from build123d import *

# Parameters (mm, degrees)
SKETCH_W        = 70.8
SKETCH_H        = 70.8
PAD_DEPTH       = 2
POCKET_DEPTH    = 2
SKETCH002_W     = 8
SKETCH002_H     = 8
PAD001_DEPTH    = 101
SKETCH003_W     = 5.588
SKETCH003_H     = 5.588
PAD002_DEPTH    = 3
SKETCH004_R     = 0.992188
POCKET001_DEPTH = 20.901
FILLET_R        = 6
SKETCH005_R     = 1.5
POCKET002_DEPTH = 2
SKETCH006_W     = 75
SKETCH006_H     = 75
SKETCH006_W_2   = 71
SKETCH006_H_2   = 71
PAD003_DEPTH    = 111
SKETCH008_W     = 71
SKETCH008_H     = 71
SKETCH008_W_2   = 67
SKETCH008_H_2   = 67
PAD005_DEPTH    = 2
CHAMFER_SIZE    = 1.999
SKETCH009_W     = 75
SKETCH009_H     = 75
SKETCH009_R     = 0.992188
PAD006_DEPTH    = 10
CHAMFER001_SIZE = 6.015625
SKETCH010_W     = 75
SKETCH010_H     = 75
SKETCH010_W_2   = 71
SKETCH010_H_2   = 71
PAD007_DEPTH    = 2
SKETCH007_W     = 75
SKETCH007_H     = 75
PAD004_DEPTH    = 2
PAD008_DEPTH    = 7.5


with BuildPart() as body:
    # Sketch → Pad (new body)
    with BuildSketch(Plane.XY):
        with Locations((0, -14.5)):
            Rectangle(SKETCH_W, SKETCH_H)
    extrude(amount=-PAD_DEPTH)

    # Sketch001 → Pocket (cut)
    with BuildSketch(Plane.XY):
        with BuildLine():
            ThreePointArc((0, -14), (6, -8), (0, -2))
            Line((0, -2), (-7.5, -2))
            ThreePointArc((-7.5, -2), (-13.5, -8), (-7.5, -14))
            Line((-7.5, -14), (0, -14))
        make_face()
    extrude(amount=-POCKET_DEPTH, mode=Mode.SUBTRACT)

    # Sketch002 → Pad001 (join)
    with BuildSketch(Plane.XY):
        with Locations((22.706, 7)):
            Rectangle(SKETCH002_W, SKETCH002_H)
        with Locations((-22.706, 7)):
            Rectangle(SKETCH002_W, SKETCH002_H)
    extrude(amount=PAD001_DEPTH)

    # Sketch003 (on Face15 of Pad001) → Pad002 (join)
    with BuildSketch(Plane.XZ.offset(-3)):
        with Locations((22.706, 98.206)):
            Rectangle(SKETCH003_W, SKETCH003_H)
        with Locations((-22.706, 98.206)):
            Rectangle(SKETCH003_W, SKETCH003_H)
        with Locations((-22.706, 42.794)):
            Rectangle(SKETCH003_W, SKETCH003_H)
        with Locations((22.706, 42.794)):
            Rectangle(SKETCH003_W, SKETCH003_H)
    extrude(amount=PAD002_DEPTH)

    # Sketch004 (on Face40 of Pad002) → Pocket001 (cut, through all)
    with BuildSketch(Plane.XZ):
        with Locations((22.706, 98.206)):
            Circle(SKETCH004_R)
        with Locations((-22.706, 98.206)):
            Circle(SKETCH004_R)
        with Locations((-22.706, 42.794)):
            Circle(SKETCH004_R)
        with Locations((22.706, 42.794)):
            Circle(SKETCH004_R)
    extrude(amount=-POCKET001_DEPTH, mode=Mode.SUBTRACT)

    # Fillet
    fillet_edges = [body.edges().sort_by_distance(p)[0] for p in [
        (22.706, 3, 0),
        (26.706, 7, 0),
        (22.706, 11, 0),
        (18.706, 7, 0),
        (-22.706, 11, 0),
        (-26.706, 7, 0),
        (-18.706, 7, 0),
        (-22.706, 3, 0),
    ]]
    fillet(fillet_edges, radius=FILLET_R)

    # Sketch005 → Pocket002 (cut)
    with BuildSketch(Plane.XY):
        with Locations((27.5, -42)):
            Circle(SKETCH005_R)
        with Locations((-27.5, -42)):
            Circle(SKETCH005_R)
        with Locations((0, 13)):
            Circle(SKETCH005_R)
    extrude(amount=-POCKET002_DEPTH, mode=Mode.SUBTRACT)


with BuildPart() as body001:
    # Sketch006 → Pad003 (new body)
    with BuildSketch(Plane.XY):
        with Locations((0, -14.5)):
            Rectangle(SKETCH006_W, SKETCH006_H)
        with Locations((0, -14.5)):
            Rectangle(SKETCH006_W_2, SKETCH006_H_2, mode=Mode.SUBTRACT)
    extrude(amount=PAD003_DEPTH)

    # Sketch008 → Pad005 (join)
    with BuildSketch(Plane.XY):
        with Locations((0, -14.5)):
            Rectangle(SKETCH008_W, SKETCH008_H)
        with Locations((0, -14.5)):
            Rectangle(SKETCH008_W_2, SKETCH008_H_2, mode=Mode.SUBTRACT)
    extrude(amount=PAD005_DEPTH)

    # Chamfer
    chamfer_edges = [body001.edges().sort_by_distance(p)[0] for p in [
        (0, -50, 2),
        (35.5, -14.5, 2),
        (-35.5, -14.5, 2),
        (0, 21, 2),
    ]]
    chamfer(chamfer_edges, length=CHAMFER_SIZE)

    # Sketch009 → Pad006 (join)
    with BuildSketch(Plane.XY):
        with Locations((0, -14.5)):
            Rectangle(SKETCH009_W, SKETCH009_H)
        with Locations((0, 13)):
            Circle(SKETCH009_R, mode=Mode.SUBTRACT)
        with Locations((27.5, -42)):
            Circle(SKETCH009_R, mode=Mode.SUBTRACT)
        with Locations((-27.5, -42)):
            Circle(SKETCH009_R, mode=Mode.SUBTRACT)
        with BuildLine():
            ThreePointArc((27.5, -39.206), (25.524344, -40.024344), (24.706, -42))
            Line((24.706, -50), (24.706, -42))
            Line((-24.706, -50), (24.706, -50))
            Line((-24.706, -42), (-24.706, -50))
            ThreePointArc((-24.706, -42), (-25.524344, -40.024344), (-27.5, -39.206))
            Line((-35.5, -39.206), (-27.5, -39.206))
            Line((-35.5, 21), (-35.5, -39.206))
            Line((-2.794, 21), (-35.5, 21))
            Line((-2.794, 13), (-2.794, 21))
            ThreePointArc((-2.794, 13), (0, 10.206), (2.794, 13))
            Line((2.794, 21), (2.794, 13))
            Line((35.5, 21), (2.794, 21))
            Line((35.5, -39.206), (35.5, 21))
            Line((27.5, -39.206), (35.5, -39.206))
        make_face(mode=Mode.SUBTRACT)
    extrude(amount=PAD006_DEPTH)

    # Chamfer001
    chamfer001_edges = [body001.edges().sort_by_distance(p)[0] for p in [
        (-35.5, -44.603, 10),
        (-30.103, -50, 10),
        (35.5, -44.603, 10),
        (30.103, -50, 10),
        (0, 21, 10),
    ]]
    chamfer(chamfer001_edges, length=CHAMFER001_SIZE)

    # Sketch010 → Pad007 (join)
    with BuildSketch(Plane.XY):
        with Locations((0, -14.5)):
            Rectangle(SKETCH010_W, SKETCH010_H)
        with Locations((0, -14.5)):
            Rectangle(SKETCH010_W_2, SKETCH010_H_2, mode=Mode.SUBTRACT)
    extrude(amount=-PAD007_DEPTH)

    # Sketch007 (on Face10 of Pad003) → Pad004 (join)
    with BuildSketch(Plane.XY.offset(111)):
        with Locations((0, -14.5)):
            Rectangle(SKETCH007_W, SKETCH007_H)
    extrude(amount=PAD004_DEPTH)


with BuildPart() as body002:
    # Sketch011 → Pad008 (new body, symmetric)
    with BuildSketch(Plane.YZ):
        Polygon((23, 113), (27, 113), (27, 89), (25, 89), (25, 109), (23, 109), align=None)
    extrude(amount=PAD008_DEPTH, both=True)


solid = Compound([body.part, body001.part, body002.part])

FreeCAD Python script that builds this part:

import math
import FreeCAD as App
import Part
import Sketcher

V = App.Vector
Q = App.Units.Quantity


def edges_at(feature, points):
    """Names of the edges that pass closest to the given points."""
    edges = feature.Shape.Edges
    near = lambda p: min(range(len(edges)), key=lambda i: edges[i].distToShape(Part.Vertex(*p))[0])
    return sorted({f"Edge{near(p) + 1}" for p in points})

doc = App.newDocument("Part")
params = doc.addObject("Spreadsheet::Sheet", "Params")
for row, (alias, value) in enumerate([
    ("sketch1_width", "70.8 mm"),
    ("pad1_length", "2 mm"),
    ("sketch2_radius", "6 mm"),
    ("sketch2_width", "7.5 mm"),
    ("pocket1_length", "2 mm"),
    ("sketch3_width", "8 mm"),
    ("pad2_length", "101 mm"),
    ("pad3_length", "3 mm"),
    ("fillet_radius", "6 mm"),
    ("sketch6_diameter", "3 mm"),
    ("pocket3_length", "2 mm"),
    ("sketch7_width", "75 mm"),
    ("sketch7_width2", "71 mm"),
    ("pad4_length", "111 mm"),
    ("sketch8_width", "71 mm"),
    ("sketch8_width2", "67 mm"),
    ("pad5_length", "2 mm"),
    ("chamfer_size", "1.999 mm"),
    ("sketch9_width", "75 mm"),
    ("sketch9_width2", "8 mm"),
    ("pad6_length", "10 mm"),
    ("chamfer2_size", "6.015625 mm"),
    ("sketch10_width", "75 mm"),
    ("sketch10_width2", "71 mm"),
    ("pad7_length", "2 mm"),
    ("sketch11_width", "75 mm"),
    ("pad8_length", "2 mm"),
    ("sketch12_width", "4 mm"),
    ("sketch12_height", "20 mm"),
    ("pad9_length", "15 mm"),
], start=1):
    params.set(f"A{row}", alias)
    params.set(f"B{row}", "=" + value)
    params.setAlias(f"B{row}", alias)

body = doc.addObject("PartDesign::Body", "Body")

sketch1 = doc.addObject("Sketcher::SketchObject", "Sketch")
body.addObject(sketch1)
sketch1.AttachmentSupport = (doc.XY_Plane, [""])
sketch1.MapMode = "FlatFace"
sketch1.addGeometry(Part.LineSegment(V(-35, 21, 0), V(-35, -50, 0)), False)
sketch1.addGeometry(Part.LineSegment(V(-35, -50, 0), V(35, -50, 0)), False)
sketch1.addGeometry(Part.LineSegment(V(35, -50, 0), V(35, 21, 0)), False)
sketch1.addGeometry(Part.LineSegment(V(35, 21, 0), V(-35, 21, 0)), False)
sketch1.addConstraint(Sketcher.Constraint("Coincident", 0, 2, 1, 1))
sketch1.addConstraint(Sketcher.Constraint("Coincident", 1, 2, 2, 1))
sketch1.addConstraint(Sketcher.Constraint("Coincident", 2, 2, 3, 1))
sketch1.addConstraint(Sketcher.Constraint("Coincident", 3, 2, 0, 1))
sketch1.addConstraint(Sketcher.Constraint("Vertical", 0))
sketch1.addConstraint(Sketcher.Constraint("Horizontal", 1))
sketch1.addConstraint(Sketcher.Constraint("Vertical", 2))
sketch1.addConstraint(Sketcher.Constraint("Horizontal", 3))
sketch1.addConstraint(Sketcher.Constraint("Equal", 3, 0))
sketch1.addConstraint(Sketcher.Constraint("DistanceX", 1, 1, 1, 2, Q("70.8 mm")))
sketch1.addConstraint(Sketcher.Constraint("DistanceX", 0, 2, -1, 1, Q("35.4 mm")))
sketch1.addConstraint(Sketcher.Constraint("DistanceY", 0, 2, -1, 1, Q("49.9 mm")))
sketch1.setExpression("Constraints[9]", "Params.sketch1_width")
pad1 = doc.addObject("PartDesign::Pad", "Pad")
body.addObject(pad1)
pad1.Profile = sketch1
pad1.setExpression("Length", "Params.pad1_length")
pad1.Reversed = True

sketch2 = doc.addObject("Sketcher::SketchObject", "Sketch001")
body.addObject(sketch2)
sketch2.AttachmentSupport = (doc.XY_Plane, [""])
sketch2.MapMode = "FlatFace"
sketch2.addGeometry(Part.ArcOfCircle(Part.Circle(V(0, -8, 0), V(0, 0, 1), 6), math.radians(-90), math.radians(90)), False)
sketch2.addGeometry(Part.LineSegment(V(0, -2, 0), V(-8, -2, 0)), False)
sketch2.addGeometry(Part.ArcOfCircle(Part.Circle(V(-8, -8, 0), V(0, 0, 1), 6), math.radians(90), math.radians(270)), False)
sketch2.addGeometry(Part.LineSegment(V(-8, -14, 0), V(0, -14, 0)), False)
sketch2.addConstraint(Sketcher.Constraint("Tangent", 0, 2, 1, 1))
sketch2.addConstraint(Sketcher.Constraint("Tangent", 1, 2, 2, 1))
sketch2.addConstraint(Sketcher.Constraint("Tangent", 2, 2, 3, 1))
sketch2.addConstraint(Sketcher.Constraint("Tangent", 3, 2, 0, 1))
sketch2.addConstraint(Sketcher.Constraint("Horizontal", 1))
sketch2.addConstraint(Sketcher.Constraint("Horizontal", 3))
sketch2.addConstraint(Sketcher.Constraint("PointOnObject", 0, 3, -2))
sketch2.addConstraint(Sketcher.Constraint("Radius", 0, Q("6 mm")))
sketch2.addConstraint(Sketcher.Constraint("DistanceX", 1, 2, 1, 1, Q("7.5 mm")))
sketch2.addConstraint(Sketcher.Constraint("DistanceY", 0, 3, -1, 1, Q("8 mm")))
sketch2.setExpression("Constraints[7]", "Params.sketch2_radius")
sketch2.setExpression("Constraints[8]", "Params.sketch2_width")
pocket1 = doc.addObject("PartDesign::Pocket", "Pocket")
body.addObject(pocket1)
pocket1.Profile = sketch2
pocket1.setExpression("Length", "Params.pocket1_length")

sketch3 = doc.addObject("Sketcher::SketchObject", "Sketch002")
body.addObject(sketch3)
sketch3.AttachmentSupport = (doc.XY_Plane, [""])
sketch3.MapMode = "FlatFace"
sketch3.addGeometry(Part.LineSegment(V(19, 11, 0), V(19, 3, 0)), False)
sketch3.addGeometry(Part.LineSegment(V(19, 3, 0), V(27, 3, 0)), False)
sketch3.addGeometry(Part.LineSegment(V(27, 3, 0), V(27, 11, 0)), False)
sketch3.addGeometry(Part.LineSegment(V(27, 11, 0), V(19, 11, 0)), False)
sketch3.addGeometry(Part.LineSegment(V(-27, 11, 0), V(-27, 3, 0)), False)
sketch3.addGeometry(Part.LineSegment(V(-27, 3, 0), V(-19, 3, 0)), False)
sketch3.addGeometry(Part.LineSegment(V(-19, 3, 0), V(-19, 11, 0)), False)
sketch3.addGeometry(Part.LineSegment(V(-19, 11, 0), V(-27, 11, 0)), False)
sketch3.addConstraint(Sketcher.Constraint("Coincident", 0, 2, 1, 1))
sketch3.addConstraint(Sketcher.Constraint("Coincident", 1, 2, 2, 1))
sketch3.addConstraint(Sketcher.Constraint("Coincident", 2, 2, 3, 1))
sketch3.addConstraint(Sketcher.Constraint("Coincident", 3, 2, 0, 1))
sketch3.addConstraint(Sketcher.Constraint("Coincident", 4, 2, 5, 1))
sketch3.addConstraint(Sketcher.Constraint("Coincident", 5, 2, 6, 1))
sketch3.addConstraint(Sketcher.Constraint("Coincident", 6, 2, 7, 1))
sketch3.addConstraint(Sketcher.Constraint("Coincident", 7, 2, 4, 1))
sketch3.addConstraint(Sketcher.Constraint("Vertical", 0))
sketch3.addConstraint(Sketcher.Constraint("Horizontal", 1))
sketch3.addConstraint(Sketcher.Constraint("Vertical", 2))
sketch3.addConstraint(Sketcher.Constraint("Horizontal", 3))
sketch3.addConstraint(Sketcher.Constraint("Vertical", 4))
sketch3.addConstraint(Sketcher.Constraint("Horizontal", 5))
sketch3.addConstraint(Sketcher.Constraint("Vertical", 6))
sketch3.addConstraint(Sketcher.Constraint("Horizontal", 7))
sketch3.addConstraint(Sketcher.Constraint("Symmetric", 1, 2, 4, 2, -2))
sketch3.addConstraint(Sketcher.Constraint("Symmetric", 3, 2, 6, 2, -2))
sketch3.addConstraint(Sketcher.Constraint("Equal", 7, 0))
sketch3.addConstraint(Sketcher.Constraint("DistanceX", 1, 1, 1, 2, Q("8 mm")))
sketch3.addConstraint(Sketcher.Constraint("DistanceY", -1, 1, 0, 2, Q("3 mm")))
sketch3.addConstraint(Sketcher.Constraint("DistanceX", -1, 1, 0, 2, Q("18.706 mm")))
sketch3.setExpression("Constraints[19]", "Params.sketch3_width")
pad2 = doc.addObject("PartDesign::Pad", "Pad001")
body.addObject(pad2)
pad2.Profile = sketch3
pad2.setExpression("Length", "Params.pad2_length")

sketch4 = doc.addObject("Sketcher::SketchObject", "Sketch003")
body.addObject(sketch4)
sketch4.AttachmentSupport = (doc.XZ_Plane, [""])
sketch4.MapMode = "FlatFace"
sketch4.AttachmentOffset = App.Placement(V(0, 0, -3), App.Rotation())
sketch4.addGeometry(Part.LineSegment(V(20, 101, 0), V(20, 95, 0)), False)
sketch4.addGeometry(Part.LineSegment(V(20, 95, 0), V(26, 95, 0)), False)
sketch4.addGeometry(Part.LineSegment(V(26, 95, 0), V(26, 101, 0)), False)
sketch4.addGeometry(Part.LineSegment(V(26, 101, 0), V(20, 101, 0)), False)
sketch4.addGeometry(Part.LineSegment(V(-26, 101, 0), V(-26, 95, 0)), False)
sketch4.addGeometry(Part.LineSegment(V(-26, 95, 0), V(-20, 95, 0)), False)
sketch4.addGeometry(Part.LineSegment(V(-20, 95, 0), V(-20, 101, 0)), False)
sketch4.addGeometry(Part.LineSegment(V(-20, 101, 0), V(-26, 101, 0)), False)
sketch4.addGeometry(Part.LineSegment(V(-26, 46, 0), V(-26, 40, 0)), False)
sketch4.addGeometry(Part.LineSegment(V(-26, 40, 0), V(-20, 40, 0)), False)
sketch4.addGeometry(Part.LineSegment(V(-20, 40, 0), V(-20, 46, 0)), False)
sketch4.addGeometry(Part.LineSegment(V(-20, 46, 0), V(-26, 46, 0)), False)
sketch4.addGeometry(Part.LineSegment(V(20, 46, 0), V(20, 40, 0)), False)
sketch4.addGeometry(Part.LineSegment(V(20, 40, 0), V(26, 40, 0)), False)
sketch4.addGeometry(Part.LineSegment(V(26, 40, 0), V(26, 46, 0)), False)
sketch4.addGeometry(Part.LineSegment(V(26, 46, 0), V(20, 46, 0)), False)
sketch4.addConstraint(Sketcher.Constraint("Coincident", 0, 2, 1, 1))
sketch4.addConstraint(Sketcher.Constraint("Coincident", 1, 2, 2, 1))
sketch4.addConstraint(Sketcher.Constraint("Coincident", 2, 2, 3, 1))
sketch4.addConstraint(Sketcher.Constraint("Coincident", 3, 2, 0, 1))
sketch4.addConstraint(Sketcher.Constraint("Coincident", 4, 2, 5, 1))
sketch4.addConstraint(Sketcher.Constraint("Coincident", 5, 2, 6, 1))
sketch4.addConstraint(Sketcher.Constraint("Coincident", 6, 2, 7, 1))
sketch4.addConstraint(Sketcher.Constraint("Coincident", 7, 2, 4, 1))
sketch4.addConstraint(Sketcher.Constraint("Coincident", 8, 2, 9, 1))
sketch4.addConstraint(Sketcher.Constraint("Coincident", 9, 2, 10, 1))
sketch4.addConstraint(Sketcher.Constraint("Coincident", 10, 2, 11, 1))
sketch4.addConstraint(Sketcher.Constraint("Coincident", 11, 2, 8, 1))
sketch4.addConstraint(Sketcher.Constraint("Coincident", 12, 2, 13, 1))
sketch4.addConstraint(Sketcher.Constraint("Coincident", 13, 2, 14, 1))
sketch4.addConstraint(Sketcher.Constraint("Coincident", 14, 2, 15, 1))
sketch4.addConstraint(Sketcher.Constraint("Coincident", 15, 2, 12, 1))
sketch4.addConstraint(Sketcher.Constraint("Vertical", 0))
sketch4.addConstraint(Sketcher.Constraint("Horizontal", 1))
sketch4.addConstraint(Sketcher.Constraint("Vertical", 2))
sketch4.addConstraint(Sketcher.Constraint("Horizontal", 3))
sketch4.addConstraint(Sketcher.Constraint("Vertical", 4))
sketch4.addConstraint(Sketcher.Constraint("Horizontal", 5))
sketch4.addConstraint(Sketcher.Constraint("Vertical", 6))
sketch4.addConstraint(Sketcher.Constraint("Horizontal", 7))
sketch4.addConstraint(Sketcher.Constraint("Vertical", 8))
sketch4.addConstraint(Sketcher.Constraint("Horizontal", 9))
sketch4.addConstraint(Sketcher.Constraint("Vertical", 10))
sketch4.addConstraint(Sketcher.Constraint("Horizontal", 11))
sketch4.addConstraint(Sketcher.Constraint("Vertical", 12))
sketch4.addConstraint(Sketcher.Constraint("Horizontal", 13))
sketch4.addConstraint(Sketcher.Constraint("Vertical", 14))
sketch4.addConstraint(Sketcher.Constraint("Horizontal", 15))
sketch4.addConstraint(Sketcher.Constraint("Symmetric", 1, 2, 4, 2, -2))
sketch4.addConstraint(Sketcher.Constraint("Symmetric", 3, 2, 6, 2, -2))
sketch4.addConstraint(Sketcher.Constraint("Symmetric", 9, 2, 12, 2, -2))
sketch4.addConstraint(Sketcher.Constraint("Symmetric", 11, 2, 14, 2, -2))
sketch4.addConstraint(Sketcher.Constraint("Vertical", 7, 2, 8, 2))
sketch4.addConstraint(Sketcher.Constraint("Vertical", 6, 2, 9, 2))
sketch4.addConstraint(Sketcher.Constraint("Equal", 15, 0))
sketch4.addConstraint(Sketcher.Constraint("Equal", 6, 8))
sketch4.addConstraint(Sketcher.Constraint("DistanceY", -1, 1, 2, 2, Q("101 mm")))
sketch4.addConstraint(Sketcher.Constraint("DistanceY", -1, 1, 8, 2, Q("40 mm")))
sketch4.addConstraint(Sketcher.Constraint("DistanceX", 4, 2, 1, 2, Q("51 mm")))
sketch4.addConstraint(Sketcher.Constraint("DistanceX", 1, 1, 1, 2, Q("5.588 mm")))
pad3 = doc.addObject("PartDesign::Pad", "Pad002")
body.addObject(pad3)
pad3.Profile = sketch4
pad3.setExpression("Length", "Params.pad3_length")

sketch5 = doc.addObject("Sketcher::SketchObject", "Sketch004")
body.addObject(sketch5)
sketch5.AttachmentSupport = (doc.XZ_Plane, [""])
sketch5.MapMode = "FlatFace"
sketch5.addGeometry(Part.Circle(V(22.7, 98.2, 0), V(0, 0, 1), 1), False)
sketch5.addGeometry(Part.Circle(V(-22.7, 98.2, 0), V(0, 0, 1), 1), False)
sketch5.addGeometry(Part.Circle(V(-22.7, 42.8, 0), V(0, 0, 1), 1), False)
sketch5.addGeometry(Part.Circle(V(22.7, 42.8, 0), V(0, 0, 1), 1), False)
sketch5.addConstraint(Sketcher.Constraint("Equal", 0, 1))
sketch5.addConstraint(Sketcher.Constraint("Equal", 1, 2))
sketch5.addConstraint(Sketcher.Constraint("Equal", 2, 3))
sketch5.addConstraint(Sketcher.Constraint("Symmetric", 0, 3, 1, 3, -2))
sketch5.addConstraint(Sketcher.Constraint("Symmetric", 2, 3, 3, 3, -2))
sketch5.addConstraint(Sketcher.Constraint("Vertical", 1, 3, 2, 3))
sketch5.addConstraint(Sketcher.Constraint("Diameter", 0, Q("1.984376 mm")))
sketch5.addConstraint(Sketcher.Constraint("DistanceX", -1, 1, 0, 3, Q("22.706 mm")))
sketch5.addConstraint(Sketcher.Constraint("DistanceY", -1, 1, 0, 3, Q("98.206 mm")))
sketch5.addConstraint(Sketcher.Constraint("DistanceY", -1, 1, 2, 3, Q("42.794 mm")))
pocket2 = doc.addObject("PartDesign::Pocket", "Pocket001")
body.addObject(pocket2)
pocket2.Profile = sketch5
pocket2.Type = "ThroughAll"
doc.recompute()

fillet = doc.addObject("PartDesign::Fillet", "Fillet")
body.addObject(fillet)
fillet.Base = (pocket2, edges_at(pocket2, [
    (22.706, 3, 0),
    (26.706, 7, 0),
    (22.706, 11, 0),
    (18.706, 7, 0),
    (-22.706, 11, 0),
    (-26.706, 7, 0),
    (-18.706, 7, 0),
    (-22.706, 3, 0),
]))
fillet.setExpression("Radius", "Params.fillet_radius")

sketch6 = doc.addObject("Sketcher::SketchObject", "Sketch005")
body.addObject(sketch6)
sketch6.AttachmentSupport = (doc.XY_Plane, [""])
sketch6.MapMode = "FlatFace"
sketch6.addGeometry(Part.Circle(V(27.5, -42, 0), V(0, 0, 1), 1.5), False)
sketch6.addGeometry(Part.Circle(V(-27.5, -42, 0), V(0, 0, 1), 1.5), False)
sketch6.addGeometry(Part.Circle(V(0, 13, 0), V(0, 0, 1), 1.5), False)
sketch6.addConstraint(Sketcher.Constraint("Equal", 0, 1))
sketch6.addConstraint(Sketcher.Constraint("Equal", 1, 2))
sketch6.addConstraint(Sketcher.Constraint("Symmetric", 0, 3, 1, 3, -2))
sketch6.addConstraint(Sketcher.Constraint("PointOnObject", 2, 3, -2))
sketch6.addConstraint(Sketcher.Constraint("Diameter", 0, Q("3 mm")))
sketch6.addConstraint(Sketcher.Constraint("DistanceY", 0, 3, -1, 1, Q("42 mm")))
sketch6.addConstraint(Sketcher.Constraint("DistanceY", -1, 1, 2, 3, Q("13 mm")))
sketch6.addConstraint(Sketcher.Constraint("DistanceX", 1, 3, 0, 3, Q("55 mm")))
sketch6.setExpression("Constraints[4]", "Params.sketch6_diameter")
pocket3 = doc.addObject("PartDesign::Pocket", "Pocket002")
body.addObject(pocket3)
pocket3.Profile = sketch6
pocket3.setExpression("Length", "Params.pocket3_length")
body2 = doc.addObject("PartDesign::Body", "Body001")

sketch7 = doc.addObject("Sketcher::SketchObject", "Sketch006")
body2.addObject(sketch7)
sketch7.AttachmentSupport = (doc.getObject("XY_Plane001"), [""])
sketch7.MapMode = "FlatFace"
sketch7.addGeometry(Part.LineSegment(V(-38, 23, 0), V(-38, -52, 0)), False)
sketch7.addGeometry(Part.LineSegment(V(-38, -52, 0), V(38, -52, 0)), False)
sketch7.addGeometry(Part.LineSegment(V(38, -52, 0), V(38, 23, 0)), False)
sketch7.addGeometry(Part.LineSegment(V(38, 23, 0), V(-38, 23, 0)), False)
sketch7.addGeometry(Part.LineSegment(V(36, -50, 0), V(-36, -50, 0)), False)
sketch7.addGeometry(Part.LineSegment(V(-36, -50, 0), V(-36, 21, 0)), False)
sketch7.addGeometry(Part.LineSegment(V(-36, 21, 0), V(36, 21, 0)), False)
sketch7.addGeometry(Part.LineSegment(V(36, 21, 0), V(36, -50, 0)), False)
sketch7.addConstraint(Sketcher.Constraint("Coincident", 0, 2, 1, 1))
sketch7.addConstraint(Sketcher.Constraint("Coincident", 1, 2, 2, 1))
sketch7.addConstraint(Sketcher.Constraint("Coincident", 2, 2, 3, 1))
sketch7.addConstraint(Sketcher.Constraint("Coincident", 3, 2, 0, 1))
sketch7.addConstraint(Sketcher.Constraint("Coincident", 4, 2, 5, 1))
sketch7.addConstraint(Sketcher.Constraint("Coincident", 5, 2, 6, 1))
sketch7.addConstraint(Sketcher.Constraint("Coincident", 6, 2, 7, 1))
sketch7.addConstraint(Sketcher.Constraint("Coincident", 7, 2, 4, 1))
sketch7.addConstraint(Sketcher.Constraint("Vertical", 0))
sketch7.addConstraint(Sketcher.Constraint("Horizontal", 1))
sketch7.addConstraint(Sketcher.Constraint("Vertical", 2))
sketch7.addConstraint(Sketcher.Constraint("Horizontal", 3))
sketch7.addConstraint(Sketcher.Constraint("Horizontal", 4))
sketch7.addConstraint(Sketcher.Constraint("Vertical", 5))
sketch7.addConstraint(Sketcher.Constraint("Horizontal", 6))
sketch7.addConstraint(Sketcher.Constraint("Vertical", 7))
sketch7.addConstraint(Sketcher.Constraint("Equal", 3, 0))
sketch7.addConstraint(Sketcher.Constraint("Equal", 6, 5))
sketch7.addConstraint(Sketcher.Constraint("DistanceX", 1, 1, 1, 2, Q("75 mm")))
sketch7.addConstraint(Sketcher.Constraint("DistanceX", 4, 2, 4, 1, Q("71 mm")))
sketch7.addConstraint(Sketcher.Constraint("DistanceY", 0, 2, -1, 1, Q("52 mm")))
sketch7.addConstraint(Sketcher.Constraint("DistanceY", 4, 2, -1, 1, Q("50 mm")))
sketch7.addConstraint(Sketcher.Constraint("DistanceX", 0, 2, 4, 2, Q("2 mm")))
sketch7.addConstraint(Sketcher.Constraint("DistanceX", 0, 2, -1, 1, Q("37.5 mm")))
sketch7.setExpression("Constraints[18]", "Params.sketch7_width")
sketch7.setExpression("Constraints[19]", "Params.sketch7_width2")
pad4 = doc.addObject("PartDesign::Pad", "Pad003")
body2.addObject(pad4)
pad4.Profile = sketch7
pad4.setExpression("Length", "Params.pad4_length")

sketch8 = doc.addObject("Sketcher::SketchObject", "Sketch007")
body2.addObject(sketch8)
sketch8.AttachmentSupport = (doc.getObject("XY_Plane001"), [""])
sketch8.MapMode = "FlatFace"
sketch8.addGeometry(Part.LineSegment(V(-36, 21, 0), V(-36, -50, 0)), False)
sketch8.addGeometry(Part.LineSegment(V(-36, -50, 0), V(36, -50, 0)), False)
sketch8.addGeometry(Part.LineSegment(V(36, -50, 0), V(36, 21, 0)), False)
sketch8.addGeometry(Part.LineSegment(V(36, 21, 0), V(-36, 21, 0)), False)
sketch8.addGeometry(Part.LineSegment(V(34, -48, 0), V(-34, -48, 0)), False)
sketch8.addGeometry(Part.LineSegment(V(-34, -48, 0), V(-34, 19, 0)), False)
sketch8.addGeometry(Part.LineSegment(V(-34, 19, 0), V(34, 19, 0)), False)
sketch8.addGeometry(Part.LineSegment(V(34, 19, 0), V(34, -48, 0)), False)
sketch8.addConstraint(Sketcher.Constraint("Coincident", 0, 2, 1, 1))
sketch8.addConstraint(Sketcher.Constraint("Coincident", 1, 2, 2, 1))
sketch8.addConstraint(Sketcher.Constraint("Coincident", 2, 2, 3, 1))
sketch8.addConstraint(Sketcher.Constraint("Coincident", 3, 2, 0, 1))
sketch8.addConstraint(Sketcher.Constraint("Coincident", 4, 2, 5, 1))
sketch8.addConstraint(Sketcher.Constraint("Coincident", 5, 2, 6, 1))
sketch8.addConstraint(Sketcher.Constraint("Coincident", 6, 2, 7, 1))
sketch8.addConstraint(Sketcher.Constraint("Coincident", 7, 2, 4, 1))
sketch8.addConstraint(Sketcher.Constraint("Vertical", 0))
sketch8.addConstraint(Sketcher.Constraint("Horizontal", 1))
sketch8.addConstraint(Sketcher.Constraint("Vertical", 2))
sketch8.addConstraint(Sketcher.Constraint("Horizontal", 3))
sketch8.addConstraint(Sketcher.Constraint("Horizontal", 4))
sketch8.addConstraint(Sketcher.Constraint("Vertical", 5))
sketch8.addConstraint(Sketcher.Constraint("Horizontal", 6))
sketch8.addConstraint(Sketcher.Constraint("Vertical", 7))
sketch8.addConstraint(Sketcher.Constraint("Equal", 3, 0))
sketch8.addConstraint(Sketcher.Constraint("Equal", 6, 5))
sketch8.addConstraint(Sketcher.Constraint("DistanceX", 1, 1, 1, 2, Q("71 mm")))
sketch8.addConstraint(Sketcher.Constraint("DistanceX", 4, 2, 4, 1, Q("67 mm")))
sketch8.addConstraint(Sketcher.Constraint("DistanceY", 0, 2, -1, 1, Q("50 mm")))
sketch8.addConstraint(Sketcher.Constraint("DistanceY", 4, 2, -1, 1, Q("48 mm")))
sketch8.addConstraint(Sketcher.Constraint("DistanceX", 0, 2, 4, 2, Q("2 mm")))
sketch8.addConstraint(Sketcher.Constraint("DistanceX", 0, 2, -1, 1, Q("35.5 mm")))
sketch8.setExpression("Constraints[18]", "Params.sketch8_width")
sketch8.setExpression("Constraints[19]", "Params.sketch8_width2")
pad5 = doc.addObject("PartDesign::Pad", "Pad004")
body2.addObject(pad5)
pad5.Profile = sketch8
pad5.setExpression("Length", "Params.pad5_length")
doc.recompute()

chamfer = doc.addObject("PartDesign::Chamfer", "Chamfer")
body2.addObject(chamfer)
chamfer.Base = (pad5, edges_at(pad5, [
    (0, -50, 2),
    (35.5, -14.5, 2),
    (-35.5, -14.5, 2),
    (0, 21, 2),
]))
chamfer.setExpression("Size", "Params.chamfer_size")

sketch9 = doc.addObject("Sketcher::SketchObject", "Sketch008")
body2.addObject(sketch9)
sketch9.AttachmentSupport = (doc.getObject("XY_Plane001"), [""])
sketch9.MapMode = "FlatFace"
sketch9.addGeometry(Part.LineSegment(V(-37.5, 23, 0), V(-37.5, -52, 0)), False)
sketch9.addGeometry(Part.LineSegment(V(-37.5, -52, 0), V(37.5, -52, 0)), False)
sketch9.addGeometry(Part.LineSegment(V(37.5, -52, 0), V(37.5, 23, 0)), False)
sketch9.addGeometry(Part.LineSegment(V(37.5, 23, 0), V(-37.5, 23, 0)), False)
sketch9.addGeometry(Part.Circle(V(-27.5, -42, 0), V(0, 0, 1), 1), False)
sketch9.addGeometry(Part.Circle(V(27.5, -42, 0), V(0, 0, 1), 1), False)
sketch9.addGeometry(Part.LineSegment(V(35.5, -39.2, 0), V(27.5, -39.2, 0)), False)
sketch9.addGeometry(Part.ArcOfCircle(Part.Circle(V(27.5, -42, 0), V(0, 0, 1), 2.8), math.radians(90), math.radians(180)), False)
sketch9.addGeometry(Part.LineSegment(V(24.7, -42, 0), V(24.7, -50, 0)), False)
sketch9.addGeometry(Part.LineSegment(V(24.7, -50, 0), V(-24.7, -50, 0)), False)
sketch9.addGeometry(Part.LineSegment(V(-24.7, -50, 0), V(-24.7, -42, 0)), False)
sketch9.addGeometry(Part.ArcOfCircle(Part.Circle(V(-27.5, -42, 0), V(0, 0, 1), 2.8), math.radians(0), math.radians(90)), False)
sketch9.addGeometry(Part.LineSegment(V(-27.5, -39.2, 0), V(-35.5, -39.2, 0)), False)
sketch9.addGeometry(Part.LineSegment(V(-35.5, -39.2, 0), V(-35.5, 21, 0)), False)
sketch9.addGeometry(Part.LineSegment(V(-35.5, 21, 0), V(-2.8, 21, 0)), False)
sketch9.addGeometry(Part.LineSegment(V(-2.8, 21, 0), V(-2.8, 13, 0)), False)
sketch9.addGeometry(Part.ArcOfCircle(Part.Circle(V(0, 13, 0), V(0, 0, 1), 2.8), math.radians(180), math.radians(360)), False)
sketch9.addGeometry(Part.LineSegment(V(2.8, 13, 0), V(2.8, 21, 0)), False)
sketch9.addGeometry(Part.LineSegment(V(2.8, 21, 0), V(35.5, 21, 0)), False)
sketch9.addGeometry(Part.LineSegment(V(35.5, 21, 0), V(35.5, -39.2, 0)), False)
sketch9.addGeometry(Part.Circle(V(0, 13, 0), V(0, 0, 1), 1), False)
sketch9.addConstraint(Sketcher.Constraint("Coincident", 0, 2, 1, 1))
sketch9.addConstraint(Sketcher.Constraint("Coincident", 1, 2, 2, 1))
sketch9.addConstraint(Sketcher.Constraint("Coincident", 2, 2, 3, 1))
sketch9.addConstraint(Sketcher.Constraint("Coincident", 3, 2, 0, 1))
sketch9.addConstraint(Sketcher.Constraint("Tangent", 6, 2, 7, 1))
sketch9.addConstraint(Sketcher.Constraint("Tangent", 7, 2, 8, 1))
sketch9.addConstraint(Sketcher.Constraint("Coincident", 8, 2, 9, 1))
sketch9.addConstraint(Sketcher.Constraint("Coincident", 9, 2, 10, 1))
sketch9.addConstraint(Sketcher.Constraint("Tangent", 10, 2, 11, 1))
sketch9.addConstraint(Sketcher.Constraint("Tangent", 11, 2, 12, 1))
sketch9.addConstraint(Sketcher.Constraint("Coincident", 12, 2, 13, 1))
sketch9.addConstraint(Sketcher.Constraint("Coincident", 13, 2, 14, 1))
sketch9.addConstraint(Sketcher.Constraint("Coincident", 14, 2, 15, 1))
sketch9.addConstraint(Sketcher.Constraint("Tangent", 15, 2, 16, 1))
sketch9.addConstraint(Sketcher.Constraint("Tangent", 16, 2, 17, 1))
sketch9.addConstraint(Sketcher.Constraint("Coincident", 17, 2, 18, 1))
sketch9.addConstraint(Sketcher.Constraint("Coincident", 18, 2, 19, 1))
sketch9.addConstraint(Sketcher.Constraint("Coincident", 19, 2, 6, 1))
sketch9.addConstraint(Sketcher.Constraint("Vertical", 0))
sketch9.addConstraint(Sketcher.Constraint("Horizontal", 1))
sketch9.addConstraint(Sketcher.Constraint("Vertical", 2))
sketch9.addConstraint(Sketcher.Constraint("Horizontal", 3))
sketch9.addConstraint(Sketcher.Constraint("Horizontal", 6))
sketch9.addConstraint(Sketcher.Constraint("Vertical", 8))
sketch9.addConstraint(Sketcher.Constraint("Horizontal", 9))
sketch9.addConstraint(Sketcher.Constraint("Vertical", 10))
sketch9.addConstraint(Sketcher.Constraint("Horizontal", 12))
sketch9.addConstraint(Sketcher.Constraint("Vertical", 13))
sketch9.addConstraint(Sketcher.Constraint("Horizontal", 14))
sketch9.addConstraint(Sketcher.Constraint("Vertical", 15))
sketch9.addConstraint(Sketcher.Constraint("Vertical", 17))
sketch9.addConstraint(Sketcher.Constraint("Horizontal", 18))
sketch9.addConstraint(Sketcher.Constraint("Vertical", 19))
sketch9.addConstraint(Sketcher.Constraint("Coincident", 7, 3, 5, 3))
sketch9.addConstraint(Sketcher.Constraint("Coincident", 11, 3, 4, 3))
sketch9.addConstraint(Sketcher.Constraint("Coincident", 20, 3, 16, 3))
sketch9.addConstraint(Sketcher.Constraint("Equal", 4, 5))
sketch9.addConstraint(Sketcher.Constraint("Equal", 7, 11))
sketch9.addConstraint(Sketcher.Constraint("Equal", 11, 16))
sketch9.addConstraint(Sketcher.Constraint("Equal", 5, 20))
sketch9.addConstraint(Sketcher.Constraint("Symmetric", 4, 3, 5, 3, -2))
sketch9.addConstraint(Sketcher.Constraint("Symmetric", 14, 2, 17, 2, -2))
sketch9.addConstraint(Sketcher.Constraint("Equal", 6, 12))
sketch9.addConstraint(Sketcher.Constraint("Equal", 3, 0))
sketch9.addConstraint(Sketcher.Constraint("Equal", 12, 8))
sketch9.addConstraint(Sketcher.Constraint("Equal", 10, 15))
sketch9.addConstraint(Sketcher.Constraint("DistanceX", 1, 1, 1, 2, Q("75 mm")))
sketch9.addConstraint(Sketcher.Constraint("DistanceX", 6, 2, 6, 1, Q("8 mm")))
sketch9.addConstraint(Sketcher.Constraint("DistanceY", 4, 3, -1, 1, Q("42 mm")))
sketch9.addConstraint(Sketcher.Constraint("DistanceY", -1, 1, 16, 3, Q("13 mm")))
sketch9.addConstraint(Sketcher.Constraint("DistanceY", 0, 2, -1, 1, Q("52 mm")))
sketch9.addConstraint(Sketcher.Constraint("Radius", 7, Q("2.794001 mm")))
sketch9.addConstraint(Sketcher.Constraint("DistanceX", 4, 3, 5, 3, Q("55 mm")))
sketch9.addConstraint(Sketcher.Constraint("DistanceX", 0, 2, 11, 3, Q("9.999999 mm")))
sketch9.addConstraint(Sketcher.Constraint("Diameter", 4, Q("1.984376 mm")))
sketch9.setExpression("Constraints[46]", "Params.sketch9_width")
sketch9.setExpression("Constraints[47]", "Params.sketch9_width2")
pad6 = doc.addObject("PartDesign::Pad", "Pad005")
body2.addObject(pad6)
pad6.Profile = sketch9
pad6.setExpression("Length", "Params.pad6_length")
doc.recompute()

chamfer2 = doc.addObject("PartDesign::Chamfer", "Chamfer001")
body2.addObject(chamfer2)
chamfer2.Base = (pad6, edges_at(pad6, [
    (-35.5, -44.603, 10),
    (-30.103, -50, 10),
    (35.5, -44.603, 10),
    (30.103, -50, 10),
    (0, 21, 10),
]))
chamfer2.setExpression("Size", "Params.chamfer2_size")

sketch10 = doc.addObject("Sketcher::SketchObject", "Sketch009")
body2.addObject(sketch10)
sketch10.AttachmentSupport = (doc.getObject("XY_Plane001"), [""])
sketch10.MapMode = "FlatFace"
sketch10.addGeometry(Part.LineSegment(V(-38, 23, 0), V(-38, -52, 0)), False)
sketch10.addGeometry(Part.LineSegment(V(-38, -52, 0), V(38, -52, 0)), False)
sketch10.addGeometry(Part.LineSegment(V(38, -52, 0), V(38, 23, 0)), False)
sketch10.addGeometry(Part.LineSegment(V(38, 23, 0), V(-38, 23, 0)), False)
sketch10.addGeometry(Part.LineSegment(V(36, -50, 0), V(-36, -50, 0)), False)
sketch10.addGeometry(Part.LineSegment(V(-36, -50, 0), V(-36, 21, 0)), False)
sketch10.addGeometry(Part.LineSegment(V(-36, 21, 0), V(36, 21, 0)), False)
sketch10.addGeometry(Part.LineSegment(V(36, 21, 0), V(36, -50, 0)), False)
sketch10.addConstraint(Sketcher.Constraint("Coincident", 0, 2, 1, 1))
sketch10.addConstraint(Sketcher.Constraint("Coincident", 1, 2, 2, 1))
sketch10.addConstraint(Sketcher.Constraint("Coincident", 2, 2, 3, 1))
sketch10.addConstraint(Sketcher.Constraint("Coincident", 3, 2, 0, 1))
sketch10.addConstraint(Sketcher.Constraint("Coincident", 4, 2, 5, 1))
sketch10.addConstraint(Sketcher.Constraint("Coincident", 5, 2, 6, 1))
sketch10.addConstraint(Sketcher.Constraint("Coincident", 6, 2, 7, 1))
sketch10.addConstraint(Sketcher.Constraint("Coincident", 7, 2, 4, 1))
sketch10.addConstraint(Sketcher.Constraint("Vertical", 0))
sketch10.addConstraint(Sketcher.Constraint("Horizontal", 1))
sketch10.addConstraint(Sketcher.Constraint("Vertical", 2))
sketch10.addConstraint(Sketcher.Constraint("Horizontal", 3))
sketch10.addConstraint(Sketcher.Constraint("Horizontal", 4))
sketch10.addConstraint(Sketcher.Constraint("Vertical", 5))
sketch10.addConstraint(Sketcher.Constraint("Horizontal", 6))
sketch10.addConstraint(Sketcher.Constraint("Vertical", 7))
sketch10.addConstraint(Sketcher.Constraint("Equal", 3, 0))
sketch10.addConstraint(Sketcher.Constraint("Equal", 6, 5))
sketch10.addConstraint(Sketcher.Constraint("DistanceX", 1, 1, 1, 2, Q("75 mm")))
sketch10.addConstraint(Sketcher.Constraint("DistanceX", 4, 2, 4, 1, Q("71 mm")))
sketch10.addConstraint(Sketcher.Constraint("DistanceY", 0, 2, -1, 1, Q("52 mm")))
sketch10.addConstraint(Sketcher.Constraint("DistanceY", 4, 2, -1, 1, Q("50 mm")))
sketch10.addConstraint(Sketcher.Constraint("DistanceX", 0, 2, 4, 2, Q("2 mm")))
sketch10.addConstraint(Sketcher.Constraint("DistanceX", 0, 2, -1, 1, Q("37.5 mm")))
sketch10.setExpression("Constraints[18]", "Params.sketch10_width")
sketch10.setExpression("Constraints[19]", "Params.sketch10_width2")
pad7 = doc.addObject("PartDesign::Pad", "Pad006")
body2.addObject(pad7)
pad7.Profile = sketch10
pad7.setExpression("Length", "Params.pad7_length")
pad7.Reversed = True

sketch11 = doc.addObject("Sketcher::SketchObject", "Sketch010")
body2.addObject(sketch11)
sketch11.AttachmentSupport = (doc.getObject("XY_Plane001"), [""])
sketch11.MapMode = "FlatFace"
sketch11.AttachmentOffset = App.Placement(V(0, 0, 111), App.Rotation())
sketch11.addGeometry(Part.LineSegment(V(-38, 23, 0), V(-38, -52, 0)), False)
sketch11.addGeometry(Part.LineSegment(V(-38, -52, 0), V(38, -52, 0)), False)
sketch11.addGeometry(Part.LineSegment(V(38, -52, 0), V(38, 23, 0)), False)
sketch11.addGeometry(Part.LineSegment(V(38, 23, 0), V(-38, 23, 0)), False)
sketch11.addConstraint(Sketcher.Constraint("Coincident", 0, 2, 1, 1))
sketch11.addConstraint(Sketcher.Constraint("Coincident", 1, 2, 2, 1))
sketch11.addConstraint(Sketcher.Constraint("Coincident", 2, 2, 3, 1))
sketch11.addConstraint(Sketcher.Constraint("Coincident", 3, 2, 0, 1))
sketch11.addConstraint(Sketcher.Constraint("Vertical", 0))
sketch11.addConstraint(Sketcher.Constraint("Horizontal", 1))
sketch11.addConstraint(Sketcher.Constraint("Vertical", 2))
sketch11.addConstraint(Sketcher.Constraint("Horizontal", 3))
sketch11.addConstraint(Sketcher.Constraint("Equal", 3, 0))
sketch11.addConstraint(Sketcher.Constraint("DistanceX", 1, 1, 1, 2, Q("75 mm")))
sketch11.addConstraint(Sketcher.Constraint("DistanceY", 0, 2, -1, 1, Q("52 mm")))
sketch11.addConstraint(Sketcher.Constraint("DistanceX", 0, 2, -1, 1, Q("37.5 mm")))
sketch11.setExpression("Constraints[9]", "Params.sketch11_width")
pad8 = doc.addObject("PartDesign::Pad", "Pad007")
body2.addObject(pad8)
pad8.Profile = sketch11
pad8.setExpression("Length", "Params.pad8_length")
body3 = doc.addObject("PartDesign::Body", "Body002")

sketch12 = doc.addObject("Sketcher::SketchObject", "Sketch011")
body3.addObject(sketch12)
sketch12.AttachmentSupport = (doc.getObject("YZ_Plane002"), [""])
sketch12.MapMode = "FlatFace"
sketch12.addGeometry(Part.LineSegment(V(27, 113, 0), V(23, 113, 0)), False)
sketch12.addGeometry(Part.LineSegment(V(23, 113, 0), V(23, 109, 0)), False)
sketch12.addGeometry(Part.LineSegment(V(23, 109, 0), V(25, 109, 0)), False)
sketch12.addGeometry(Part.LineSegment(V(25, 109, 0), V(25, 89, 0)), False)
sketch12.addGeometry(Part.LineSegment(V(25, 89, 0), V(27, 89, 0)), False)
sketch12.addGeometry(Part.LineSegment(V(27, 89, 0), V(27, 113, 0)), False)
sketch12.addConstraint(Sketcher.Constraint("Coincident", 0, 2, 1, 1))
sketch12.addConstraint(Sketcher.Constraint("Coincident", 1, 2, 2, 1))
sketch12.addConstraint(Sketcher.Constraint("Coincident", 2, 2, 3, 1))
sketch12.addConstraint(Sketcher.Constraint("Coincident", 3, 2, 4, 1))
sketch12.addConstraint(Sketcher.Constraint("Coincident", 4, 2, 5, 1))
sketch12.addConstraint(Sketcher.Constraint("Coincident", 5, 2, 0, 1))
sketch12.addConstraint(Sketcher.Constraint("Horizontal", 0))
sketch12.addConstraint(Sketcher.Constraint("Vertical", 1))
sketch12.addConstraint(Sketcher.Constraint("Horizontal", 2))
sketch12.addConstraint(Sketcher.Constraint("Vertical", 3))
sketch12.addConstraint(Sketcher.Constraint("Horizontal", 4))
sketch12.addConstraint(Sketcher.Constraint("Vertical", 5))
sketch12.addConstraint(Sketcher.Constraint("Equal", 2, 4))
sketch12.addConstraint(Sketcher.Constraint("Equal", 0, 1))
sketch12.addConstraint(Sketcher.Constraint("DistanceX", 0, 2, 0, 1, Q("4 mm")))
sketch12.addConstraint(Sketcher.Constraint("DistanceY", 3, 2, 3, 1, Q("20 mm")))
sketch12.addConstraint(Sketcher.Constraint("DistanceX", -1, 1, 0, 2, Q("23 mm")))
sketch12.addConstraint(Sketcher.Constraint("DistanceY", -1, 1, 0, 2, Q("113 mm")))
sketch12.setExpression("Constraints[14]", "Params.sketch12_width")
sketch12.setExpression("Constraints[15]", "Params.sketch12_height")
pad9 = doc.addObject("PartDesign::Pad", "Pad008")
body3.addObject(pad9)
pad9.Profile = sketch12
pad9.setExpression("Length", "Params.pad9_length")
pad9.Midplane = True

doc.recompute()
